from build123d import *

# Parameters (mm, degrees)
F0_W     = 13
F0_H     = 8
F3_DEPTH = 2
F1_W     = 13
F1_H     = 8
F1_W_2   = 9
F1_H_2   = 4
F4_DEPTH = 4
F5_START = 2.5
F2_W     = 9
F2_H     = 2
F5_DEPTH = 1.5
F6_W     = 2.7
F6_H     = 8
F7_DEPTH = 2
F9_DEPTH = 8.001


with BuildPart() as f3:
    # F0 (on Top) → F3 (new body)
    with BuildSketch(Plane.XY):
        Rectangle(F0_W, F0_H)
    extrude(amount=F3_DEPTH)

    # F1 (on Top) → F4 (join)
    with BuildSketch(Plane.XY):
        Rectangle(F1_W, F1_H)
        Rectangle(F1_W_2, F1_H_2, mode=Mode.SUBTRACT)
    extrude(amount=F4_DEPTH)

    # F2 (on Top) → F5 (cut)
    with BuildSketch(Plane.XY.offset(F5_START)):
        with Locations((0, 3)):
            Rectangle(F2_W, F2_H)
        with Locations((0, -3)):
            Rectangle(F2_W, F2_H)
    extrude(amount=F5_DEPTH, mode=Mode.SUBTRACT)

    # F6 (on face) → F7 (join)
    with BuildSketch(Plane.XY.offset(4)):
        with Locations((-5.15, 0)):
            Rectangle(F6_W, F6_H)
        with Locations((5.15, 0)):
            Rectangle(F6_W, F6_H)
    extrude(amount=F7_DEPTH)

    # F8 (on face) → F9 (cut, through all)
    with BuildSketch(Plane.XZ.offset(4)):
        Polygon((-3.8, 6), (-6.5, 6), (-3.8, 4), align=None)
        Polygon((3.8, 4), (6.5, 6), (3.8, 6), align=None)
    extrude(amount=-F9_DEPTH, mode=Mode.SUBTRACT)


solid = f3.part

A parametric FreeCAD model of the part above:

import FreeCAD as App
import Part
import Sketcher
Q = App.Units.Quantity


def add_polygon(sketch, points):
    """Adds a closed chain of lines whose ends are joined by coincident constraints."""
    first, n = sketch.GeometryCount, len(points)
    for a, b in zip(points, points[1:] + points[:1]):
        sketch.addGeometry(Part.LineSegment(App.Vector(*a, 0), App.Vector(*b, 0)), False)
    for i in range(n):
        sketch.addConstraint(Sketcher.Constraint("Coincident", first + i, 2, first + (i + 1) % n, 1))

doc = App.newDocument("Part")
body = doc.addObject("PartDesign::Body", "Body")

# Sketch on XY plane
sketch1 = body.newObject("Sketcher::SketchObject", "Sketch")
sketch1.AttachmentSupport = (doc.getObject("XY_Plane"), [""])
sketch1.MapMode = "FlatFace"
add_polygon(sketch1, [(-6, 4), (-6, -4), (6, -4), (6, 4)])  # lines 0-3
sketch1.addConstraint(Sketcher.Constraint("Vertical", 0))
sketch1.addConstraint(Sketcher.Constraint("Horizontal", 1))
sketch1.addConstraint(Sketcher.Constraint("Vertical", 2))
sketch1.addConstraint(Sketcher.Constraint("Horizontal", 3))
sketch1.addConstraint(Sketcher.Constraint("Symmetric", 0, 2, 2, 2, -1, 1))
sketch1.addConstraint(Sketcher.Constraint("DistanceX", 1, 1, 1, 2, Q("13 mm")))
sketch1.addConstraint(Sketcher.Constraint("DistanceY", 0, 2, 0, 1, Q("8 mm")))
pad1 = body.newObject("PartDesign::Pad", "Pad")
pad1.Profile = sketch1
pad1.Length = 2

# Sketch on XY plane
sketch2 = body.newObject("Sketcher::SketchObject", "Sketch001")
sketch2.AttachmentSupport = (doc.getObject("XY_Plane"), [""])
sketch2.MapMode = "FlatFace"
add_polygon(sketch2, [(-6.5, 4), (-6.5, -4), (6.5, -4), (6.5, 4)])  # lines 0-3
add_polygon(sketch2, [(4.5, -2), (-4.5, -2), (-4.5, 2), (4.5, 2)])  # lines 4-7
sketch2.addConstraint(Sketcher.Constraint("Vertical", 0))
sketch2.addConstraint(Sketcher.Constraint("Horizontal", 1))
sketch2.addConstraint(Sketcher.Constraint("Vertical", 2))
sketch2.addConstraint(Sketcher.Constraint("Horizontal", 3))
sketch2.addConstraint(Sketcher.Constraint("Horizontal", 4))
sketch2.addConstraint(Sketcher.Constraint("Vertical", 5))
sketch2.addConstraint(Sketcher.Constraint("Horizontal", 6))
sketch2.addConstraint(Sketcher.Constraint("Vertical", 7))
sketch2.addConstraint(Sketcher.Constraint("Symmetric", 0, 2, 2, 2, -1, 1))
sketch2.addConstraint(Sketcher.Constraint("Symmetric", 4, 2, 6, 2, -1, 1))
sketch2.addConstraint(Sketcher.Constraint("DistanceX", 1, 1, 1, 2, Q("13 mm")))
sketch2.addConstraint(Sketcher.Constraint("DistanceX", 4, 2, 4, 1, Q("9 mm")))
sketch2.addConstraint(Sketcher.Constraint("DistanceY", 0, 2, 0, 1, Q("8 mm")))
sketch2.addConstraint(Sketcher.Constraint("DistanceY", 5, 1, 5, 2, Q("4 mm")))
pad2 = body.newObject("PartDesign::Pad", "Pad001")
pad2.Profile = sketch2
pad2.Length = 4

# Sketch on XY plane
sketch3 = body.newObject("Sketcher::SketchObject", "Sketch002")
sketch3.AttachmentSupport = (doc.getObject("XY_Plane"), [""])
sketch3.MapMode = "FlatFace"
sketch3.AttachmentOffset = App.Placement(App.Vector(0, 0, 2.5), App.Rotation())
add_polygon(sketch3, [(-4.5, 4), (-4.5, 2), (4.5, 2), (4.5, 4)])  # lines 0-3
add_polygon(sketch3, [(-4.5, -2), (-4.5, -4), (4.5, -4), (4.5, -2)])  # lines 4-7
sketch3.addConstraint(Sketcher.Constraint("Vertical", 0))
sketch3.addConstraint(Sketcher.Constraint("Horizontal", 1))
sketch3.addConstraint(Sketcher.Constraint("Vertical", 2))
sketch3.addConstraint(Sketcher.Constraint("Horizontal", 3))
sketch3.addConstraint(Sketcher.Constraint("Vertical", 4))
sketch3.addConstraint(Sketcher.Constraint("Horizontal", 5))
sketch3.addConstraint(Sketcher.Constraint("Vertical", 6))
sketch3.addConstraint(Sketcher.Constraint("Horizontal", 7))
sketch3.addConstraint(Sketcher.Constraint("Symmetric", 2, 2, 4, 2, -1, 1))
sketch3.addConstraint(Sketcher.Constraint("Symmetric", 0, 2, 6, 2, -1, 1))
sketch3.addConstraint(Sketcher.Constraint("Vertical", 3, 2, 4, 2))
sketch3.addConstraint(Sketcher.Constraint("DistanceX", 1, 1, 1, 2, Q("9 mm")))
sketch3.addConstraint(Sketcher.Constraint("DistanceY", 0, 2, 0, 1, Q("2 mm")))
sketch3.addConstraint(Sketcher.Constraint("DistanceY", -1, 1, 0, 2, Q("2 mm")))
pocket1 = body.newObject("PartDesign::Pocket", "Pocket")
pocket1.Profile = sketch3
pocket1.Length = 1.5
pocket1.Reversed = True

# Sketch on XY plane
sketch4 = body.newObject("Sketcher::SketchObject", "Sketch003")
sketch4.AttachmentSupport = (doc.getObject("XY_Plane"), [""])
sketch4.MapMode = "FlatFace"
sketch4.AttachmentOffset = App.Placement(App.Vector(0, 0, 4), App.Rotation())
add_polygon(sketch4, [(-6.5, 4), (-6.5, -4), (-3.8, -4), (-3.8, 4)])  # lines 0-3
add_polygon(sketch4, [(3.8, 4), (3.8, -4), (6.5, -4), (6.5, 4)])  # lines 4-7
sketch4.addConstraint(Sketcher.Constraint("Vertical", 0))
sketch4.addConstraint(Sketcher.Constraint("Horizontal", 1))
sketch4.addConstraint(Sketcher.Constraint("Vertical", 2))
sketch4.addConstraint(Sketcher.Constraint("Horizontal", 3))
sketch4.addConstraint(Sketcher.Constraint("Vertical", 4))
sketch4.addConstraint(Sketcher.Constraint("Horizontal", 5))
sketch4.addConstraint(Sketcher.Constraint("Vertical", 6))
sketch4.addConstraint(Sketcher.Constraint("Horizontal", 7))
sketch4.addConstraint(Sketcher.Constraint("Symmetric", 2, 2, 4, 2, -1, 1))
sketch4.addConstraint(Sketcher.Constraint("Symmetric", 0, 2, 6, 2, -1, 1))
sketch4.addConstraint(Sketcher.Constraint("Horizontal", 1, 2, 4, 2))
sketch4.addConstraint(Sketcher.Constraint("DistanceY", 0, 2, 0, 1, Q("8 mm")))
sketch4.addConstraint(Sketcher.Constraint("DistanceX", 1, 1, 1, 2, Q("2.7 mm")))
sketch4.addConstraint(Sketcher.Constraint("DistanceX", 0, 2, 5, 2, Q("13 mm")))
pad3 = body.newObject("PartDesign::Pad", "Pad002")
pad3.Profile = sketch4
pad3.Length = 2

# Sketch on XZ plane
sketch5 = body.newObject("Sketcher::SketchObject", "Sketch004")
sketch5.AttachmentSupport = (doc.getObject("XZ_Plane"), [""])
sketch5.MapMode = "FlatFace"
sketch5.AttachmentOffset = App.Placement(App.Vector(0, 0, 4), App.Rotation())
add_polygon(sketch5, [(-3.8, 6), (-6.5, 6), (-3.8, 4)])  # lines 0-2
add_polygon(sketch5, [(3.8, 4), (6.5, 6), (3.8, 6)])  # lines 3-5
sketch5.addConstraint(Sketcher.Constraint("Horizontal", 0))
sketch5.addConstraint(Sketcher.Constraint("Vertical", 2))
sketch5.addConstraint(Sketcher.Constraint("Horizontal", 4))
sketch5.addConstraint(Sketcher.Constraint("Vertical", 5))
sketch5.addConstraint(Sketcher.Constraint("Symmetric", 0, 2, 3, 2, -2))
sketch5.addConstraint(Sketcher.Constraint("Symmetric", 1, 2, 5, 2, -2))
sketch5.addConstraint(Sketcher.Constraint("DistanceY", 2, 1, 2, 2, Q("2 mm")))
sketch5.addConstraint(Sketcher.Constraint("DistanceX", 0, 2, 0, 1, Q("2.7 mm")))
sketch5.addConstraint(Sketcher.Constraint("DistanceY", -1, 1, 0, 2, Q("6 mm")))
sketch5.addConstraint(Sketcher.Constraint("DistanceX", 0, 2, 3, 2, Q("13 mm")))
pocket2 = body.newObject("PartDesign::Pocket", "Pocket001")
pocket2.Profile = sketch5
pocket2.Type = "ThroughAll"

doc.recompute()
